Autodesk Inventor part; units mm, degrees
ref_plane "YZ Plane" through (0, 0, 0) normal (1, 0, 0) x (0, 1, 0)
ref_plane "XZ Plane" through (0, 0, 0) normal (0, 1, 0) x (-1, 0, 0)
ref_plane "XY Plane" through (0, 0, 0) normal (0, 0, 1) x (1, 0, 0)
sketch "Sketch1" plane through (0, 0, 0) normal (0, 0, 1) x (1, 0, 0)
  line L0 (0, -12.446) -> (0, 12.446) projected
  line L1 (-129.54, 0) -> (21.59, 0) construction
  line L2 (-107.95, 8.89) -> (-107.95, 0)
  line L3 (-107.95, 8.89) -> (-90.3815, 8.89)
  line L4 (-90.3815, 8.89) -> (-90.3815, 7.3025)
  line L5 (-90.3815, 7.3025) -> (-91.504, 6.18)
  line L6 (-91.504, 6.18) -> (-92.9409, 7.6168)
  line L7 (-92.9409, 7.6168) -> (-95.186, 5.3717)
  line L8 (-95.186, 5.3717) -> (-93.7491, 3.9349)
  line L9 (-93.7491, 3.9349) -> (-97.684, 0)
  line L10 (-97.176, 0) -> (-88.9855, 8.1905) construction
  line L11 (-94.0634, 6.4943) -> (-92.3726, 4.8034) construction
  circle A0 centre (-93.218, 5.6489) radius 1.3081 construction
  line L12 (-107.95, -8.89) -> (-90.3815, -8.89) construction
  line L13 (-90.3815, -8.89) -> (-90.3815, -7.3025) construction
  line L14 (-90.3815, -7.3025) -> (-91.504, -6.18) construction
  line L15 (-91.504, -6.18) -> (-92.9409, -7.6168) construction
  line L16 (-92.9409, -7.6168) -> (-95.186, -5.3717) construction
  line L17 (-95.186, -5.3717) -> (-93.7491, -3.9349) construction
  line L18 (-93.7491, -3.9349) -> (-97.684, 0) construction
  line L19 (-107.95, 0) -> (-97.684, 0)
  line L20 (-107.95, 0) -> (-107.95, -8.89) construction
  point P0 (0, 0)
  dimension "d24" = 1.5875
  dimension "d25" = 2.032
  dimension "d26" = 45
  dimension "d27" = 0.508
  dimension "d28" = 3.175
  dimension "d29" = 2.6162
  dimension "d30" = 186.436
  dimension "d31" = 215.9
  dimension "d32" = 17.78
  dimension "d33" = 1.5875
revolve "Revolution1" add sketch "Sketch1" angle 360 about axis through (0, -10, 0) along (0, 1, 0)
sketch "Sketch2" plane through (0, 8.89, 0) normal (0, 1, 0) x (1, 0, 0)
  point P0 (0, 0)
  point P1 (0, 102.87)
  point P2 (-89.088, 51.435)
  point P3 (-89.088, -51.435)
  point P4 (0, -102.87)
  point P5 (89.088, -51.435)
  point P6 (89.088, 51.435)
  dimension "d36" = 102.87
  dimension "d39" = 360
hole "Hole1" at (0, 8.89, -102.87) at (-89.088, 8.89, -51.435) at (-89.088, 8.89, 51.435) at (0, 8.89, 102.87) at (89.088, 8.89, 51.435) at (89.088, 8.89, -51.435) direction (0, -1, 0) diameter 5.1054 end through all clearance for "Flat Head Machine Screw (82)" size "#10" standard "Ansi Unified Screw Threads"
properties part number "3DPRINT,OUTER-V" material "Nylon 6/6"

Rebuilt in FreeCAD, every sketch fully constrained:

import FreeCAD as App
import Part
import Sketcher
Q = App.Units.Quantity


def add_polygon(sketch, points):
    """Adds a closed chain of lines whose ends are joined by coincident constraints."""
    first, n = sketch.GeometryCount, len(points)
    for a, b in zip(points, points[1:] + points[:1]):
        sketch.addGeometry(Part.LineSegment(App.Vector(*a, 0), App.Vector(*b, 0)), False)
    for i in range(n):
        sketch.addConstraint(Sketcher.Constraint("Coincident", first + i, 2, first + (i + 1) % n, 1))

doc = App.newDocument("Part")
params = doc.addObject("Spreadsheet::Sheet", "Params")
for row, (alias, value) in enumerate([
    ("sketch1_length", "0.08 in"),
    ("sketch1_height", "0.0625 in"),
    ("sketch1_length2", "0.125 in"),
    ("sketch1_length3", "0.0625 in"),
    ("sketch1_height2", "0.35 in"),
    ("revolution_angle", "360 deg"),
    ("sketch2_diameter", "0.201 in"),
    ("hole_diameter", "0.201 in"),
], start=1):
    params.set(f"A{row}", alias)
    params.set(f"B{row}", "=" + value)
    params.setAlias(f"B{row}", alias)

body = doc.addObject("PartDesign::Body", "Body")

sketch1 = body.newObject("Sketcher::SketchObject", "Sketch")
sketch1.AttachmentSupport = (doc.getObject("XY_Plane"), [""])
sketch1.MapMode = "FlatFace"
add_polygon(sketch1, [(-90.3815, 8.89), (-107.95, 8.89), (-107.95, 0), (-97.684, 0), (-93.7491, 3.9349), (-95.186, 5.3717), (-92.9409, 7.6168), (-91.504, 6.18), (-90.3815, 7.3025)])
sketch1.addConstraint(Sketcher.Constraint("Horizontal", 0))
sketch1.addConstraint(Sketcher.Constraint("Vertical", 1))
sketch1.addConstraint(Sketcher.Constraint("Horizontal", 2))
sketch1.addConstraint(Sketcher.Constraint("Vertical", 8))
sketch1.addConstraint(Sketcher.Constraint("PointOnObject", 1, 2, -1))
sketch1.addConstraint(Sketcher.Constraint("Perpendicular", 3, 4))
sketch1.addConstraint(Sketcher.Constraint("Perpendicular", 4, 5))
sketch1.addConstraint(Sketcher.Constraint("Perpendicular", 5, 6))
sketch1.addConstraint(Sketcher.Constraint("Perpendicular", 6, 7))
sketch1.addConstraint(Sketcher.Constraint("Equal", 4, 6))
sketch1.addConstraint(Sketcher.Constraint("Angle", 3, Q("45 deg")))
sketch1.addConstraint(Sketcher.Constraint("Distance", 4, Q("0.08 in")))
sketch1.addConstraint(Sketcher.Constraint("DistanceY", 8, 1, 8, 2, Q("0.0625 in")))
sketch1.addConstraint(Sketcher.Constraint("Distance", 5, Q("0.125 in")))
sketch1.addConstraint(Sketcher.Constraint("Distance", 7, Q("0.0625 in")))
sketch1.addConstraint(Sketcher.Constraint("DistanceY", 1, 2, 1, 1, Q("0.35 in")))
sketch1.addConstraint(Sketcher.Constraint("DistanceX", 0, 2, -1, 1, Q("4.25 in")))
sketch1.addConstraint(Sketcher.Constraint("DistanceX", 0, 2, 0, 1, 17.5685))
sketch1.setExpression("Constraints[20]", "Params.sketch1_length")
sketch1.setExpression("Constraints[21]", "Params.sketch1_height")
sketch1.setExpression("Constraints[22]", "Params.sketch1_length2")
sketch1.setExpression("Constraints[23]", "Params.sketch1_length3")
sketch1.setExpression("Constraints[24]", "Params.sketch1_height2")
revolution = body.newObject("PartDesign::Revolution", "Revolution")
revolution.Profile = sketch1
revolution.ReferenceAxis = (sketch1, ["V_Axis"])
revolution.setExpression("Angle", "Params.revolution_angle")

sketch2 = body.newObject("Sketcher::SketchObject", "Sketch001")
sketch2.AttachmentSupport = (doc.getObject("XZ_Plane"), [""])
sketch2.MapMode = "FlatFace"
sketch2.AttachmentOffset = App.Placement(App.Vector(0, 0, -0.35 * 25.4), App.Rotation())
sketch2.addGeometry(Part.Circle(App.Vector(0, -102.87, 0), App.Vector(0, 0, 1), 2.5527), False)
sketch2.addGeometry(Part.Circle(App.Vector(-89.088, -51.435, 0), App.Vector(0, 0, 1), 2.5527), False)
sketch2.addGeometry(Part.Circle(App.Vector(-89.088, 51.435, 0), App.Vector(0, 0, 1), 2.5527), False)
sketch2.addGeometry(Part.Circle(App.Vector(0, 102.87, 0), App.Vector(0, 0, 1), 2.5527), False)
sketch2.addGeometry(Part.Circle(App.Vector(89.088, 51.435, 0), App.Vector(0, 0, 1), 2.5527), False)
sketch2.addGeometry(Part.Circle(App.Vector(89.088, -51.435, 0), App.Vector(0, 0, 1), 2.5527), False)
sketch2.addConstraint(Sketcher.Constraint("Equal", 0, 1))
sketch2.addConstraint(Sketcher.Constraint("Equal", 1, 2))
sketch2.addConstraint(Sketcher.Constraint("Equal", 2, 3))
sketch2.addConstraint(Sketcher.Constraint("Equal", 3, 4))
sketch2.addConstraint(Sketcher.Constraint("Equal", 4, 5))
sketch2.addConstraint(Sketcher.Constraint("Symmetric", 0, 3, 3, 3, -1, 1))
sketch2.addConstraint(Sketcher.Constraint("Symmetric", 1, 3, 4, 3, -1, 1))
sketch2.addConstraint(Sketcher.Constraint("Symmetric", 2, 3, 5, 3, -1, 1))
sketch2.addConstraint(Sketcher.Constraint("Symmetric", 2, 3, 4, 3, -2))
sketch2.addConstraint(Sketcher.Constraint("PointOnObject", 0, 3, -2))
sketch2.addConstraint(Sketcher.Constraint("Diameter", 0, Q("0.201 in")))
sketch2.addConstraint(Sketcher.Constraint("DistanceY", 0, 3, 3, 3, Q("8.1 in")))
sketch2.addConstraint(Sketcher.Constraint("DistanceY", 1, 3, 2, 3, Q("4.05 in")))
sketch2.addConstraint(Sketcher.Constraint("DistanceX", 1, 3, -1, 1, Q("3.5074 in")))
sketch2.setExpression("Constraints[10]", "Params.sketch2_diameter")
doc.recompute()
hole = body.newObject("PartDesign::Hole", "Hole")
hole.Profile = sketch2
hole.ThreadType = "None"
hole.setExpression("Diameter", "Params.hole_diameter")
hole.DepthType = "ThroughAll"
hole.Reversed = True

doc.recompute()
